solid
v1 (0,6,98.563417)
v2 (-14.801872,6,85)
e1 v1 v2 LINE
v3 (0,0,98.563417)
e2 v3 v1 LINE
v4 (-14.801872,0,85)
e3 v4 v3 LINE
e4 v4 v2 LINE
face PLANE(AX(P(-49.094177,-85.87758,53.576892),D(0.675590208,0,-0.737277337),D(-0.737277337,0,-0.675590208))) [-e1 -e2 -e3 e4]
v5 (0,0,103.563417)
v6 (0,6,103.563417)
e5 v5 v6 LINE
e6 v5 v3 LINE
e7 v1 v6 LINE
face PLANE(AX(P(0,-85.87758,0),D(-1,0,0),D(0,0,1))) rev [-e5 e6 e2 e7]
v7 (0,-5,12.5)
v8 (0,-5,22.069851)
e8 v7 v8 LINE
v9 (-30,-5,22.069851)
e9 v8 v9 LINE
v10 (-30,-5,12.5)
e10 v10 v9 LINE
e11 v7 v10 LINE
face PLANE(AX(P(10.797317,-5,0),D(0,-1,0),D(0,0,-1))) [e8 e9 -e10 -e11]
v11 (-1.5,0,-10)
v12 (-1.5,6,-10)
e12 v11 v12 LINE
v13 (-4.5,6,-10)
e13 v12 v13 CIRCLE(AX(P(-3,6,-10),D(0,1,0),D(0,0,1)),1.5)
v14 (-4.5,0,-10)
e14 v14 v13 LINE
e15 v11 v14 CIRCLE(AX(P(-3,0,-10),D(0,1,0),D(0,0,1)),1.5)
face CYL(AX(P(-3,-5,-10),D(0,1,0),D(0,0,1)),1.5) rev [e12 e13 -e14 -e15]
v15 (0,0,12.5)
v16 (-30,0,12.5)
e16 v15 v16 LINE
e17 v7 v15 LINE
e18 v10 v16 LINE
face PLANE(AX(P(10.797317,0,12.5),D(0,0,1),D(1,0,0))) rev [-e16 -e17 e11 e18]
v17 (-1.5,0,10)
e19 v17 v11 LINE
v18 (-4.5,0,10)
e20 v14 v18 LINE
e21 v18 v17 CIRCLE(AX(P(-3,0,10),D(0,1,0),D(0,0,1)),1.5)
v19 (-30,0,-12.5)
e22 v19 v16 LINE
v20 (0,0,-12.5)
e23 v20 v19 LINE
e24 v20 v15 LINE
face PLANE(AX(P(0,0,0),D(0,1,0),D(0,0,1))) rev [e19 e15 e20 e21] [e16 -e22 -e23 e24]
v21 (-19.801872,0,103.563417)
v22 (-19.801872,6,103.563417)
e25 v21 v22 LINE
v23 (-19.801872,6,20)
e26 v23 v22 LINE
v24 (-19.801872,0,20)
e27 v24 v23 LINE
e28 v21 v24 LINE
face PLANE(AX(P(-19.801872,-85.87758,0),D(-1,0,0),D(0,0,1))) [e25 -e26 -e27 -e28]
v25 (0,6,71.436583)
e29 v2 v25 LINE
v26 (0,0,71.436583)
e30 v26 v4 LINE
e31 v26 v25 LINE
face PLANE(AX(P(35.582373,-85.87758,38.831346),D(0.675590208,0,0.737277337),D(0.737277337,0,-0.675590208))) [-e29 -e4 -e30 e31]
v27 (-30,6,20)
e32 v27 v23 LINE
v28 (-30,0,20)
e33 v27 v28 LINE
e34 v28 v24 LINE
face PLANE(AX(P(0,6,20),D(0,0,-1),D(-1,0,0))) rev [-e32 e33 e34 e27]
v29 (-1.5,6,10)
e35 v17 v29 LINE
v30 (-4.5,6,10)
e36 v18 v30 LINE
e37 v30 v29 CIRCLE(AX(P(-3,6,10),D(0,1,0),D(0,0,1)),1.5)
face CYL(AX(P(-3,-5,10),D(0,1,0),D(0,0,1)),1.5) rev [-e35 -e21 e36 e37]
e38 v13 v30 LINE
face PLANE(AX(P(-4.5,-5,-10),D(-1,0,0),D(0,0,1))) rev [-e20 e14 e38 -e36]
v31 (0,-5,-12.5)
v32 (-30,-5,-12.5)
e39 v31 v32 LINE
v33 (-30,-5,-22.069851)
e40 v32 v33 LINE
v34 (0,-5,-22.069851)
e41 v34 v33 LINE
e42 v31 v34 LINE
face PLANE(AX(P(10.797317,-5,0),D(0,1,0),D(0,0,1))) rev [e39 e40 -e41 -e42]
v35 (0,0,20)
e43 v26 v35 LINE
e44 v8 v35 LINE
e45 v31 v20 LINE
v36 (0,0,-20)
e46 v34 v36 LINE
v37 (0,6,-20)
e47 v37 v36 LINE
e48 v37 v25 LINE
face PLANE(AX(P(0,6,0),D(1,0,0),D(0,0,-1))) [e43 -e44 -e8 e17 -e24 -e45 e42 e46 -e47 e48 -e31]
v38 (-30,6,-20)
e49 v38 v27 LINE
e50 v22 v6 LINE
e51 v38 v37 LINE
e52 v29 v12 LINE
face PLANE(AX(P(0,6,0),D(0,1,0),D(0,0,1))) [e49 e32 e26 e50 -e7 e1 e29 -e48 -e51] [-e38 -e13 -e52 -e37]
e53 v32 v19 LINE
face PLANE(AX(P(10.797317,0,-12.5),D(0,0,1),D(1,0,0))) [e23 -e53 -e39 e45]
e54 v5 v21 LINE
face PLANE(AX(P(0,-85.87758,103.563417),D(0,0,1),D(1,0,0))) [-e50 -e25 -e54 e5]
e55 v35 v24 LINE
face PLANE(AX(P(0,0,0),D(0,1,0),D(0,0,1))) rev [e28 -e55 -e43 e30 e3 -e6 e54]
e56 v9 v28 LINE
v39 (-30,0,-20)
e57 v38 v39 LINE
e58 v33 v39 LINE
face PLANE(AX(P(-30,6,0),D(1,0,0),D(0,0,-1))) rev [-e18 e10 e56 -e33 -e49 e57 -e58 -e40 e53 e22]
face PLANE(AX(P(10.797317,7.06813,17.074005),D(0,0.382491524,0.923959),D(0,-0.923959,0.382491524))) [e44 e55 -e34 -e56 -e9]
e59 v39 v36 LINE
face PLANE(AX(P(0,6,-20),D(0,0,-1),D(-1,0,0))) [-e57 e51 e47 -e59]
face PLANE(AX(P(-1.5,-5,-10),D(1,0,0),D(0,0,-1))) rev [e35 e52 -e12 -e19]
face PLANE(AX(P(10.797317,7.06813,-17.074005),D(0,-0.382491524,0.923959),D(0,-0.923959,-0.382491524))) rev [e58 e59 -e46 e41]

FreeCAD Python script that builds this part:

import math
import FreeCAD as App
import Part
import Sketcher
from FreeCAD import Vector
Q = App.Units.Quantity


def add_polygon(sketch, points):
    """Adds a closed chain of lines whose ends are joined by coincident constraints."""
    first, n = sketch.GeometryCount, len(points)
    for a, b in zip(points, points[1:] + points[:1]):
        sketch.addGeometry(Part.LineSegment(App.Vector(*a, 0), App.Vector(*b, 0)), False)
    for i in range(n):
        sketch.addConstraint(Sketcher.Constraint("Coincident", first + i, 2, first + (i + 1) % n, 1))

doc = App.newDocument("Part")
body = doc.addObject("PartDesign::Body", "Body")

sketch1 = body.newObject("Sketcher::SketchObject", "Sketch")
sketch1.AttachmentSupport = (doc.getObject("XZ_Plane"), [""])
sketch1.MapMode = "FlatFace"
add_polygon(sketch1, [(-30, -20), (-30, 20), (0, 20), (0, -20)])
sketch1.addConstraint([
    Sketcher.Constraint("Vertical", 0),
    Sketcher.Constraint("Horizontal", 1),
    Sketcher.Constraint("Vertical", 2),
    Sketcher.Constraint("Horizontal", 3),
    Sketcher.Constraint("Symmetric", 1, 2, 2, 2, -1, 1),
    Sketcher.Constraint("DistanceX", 1, 1, 1, 2, 30.0),
    Sketcher.Constraint("DistanceY", 0, 1, 0, 2, 40.0),
])
pad1 = body.newObject("PartDesign::Pad", "Pad")
pad1.Profile = sketch1
pad1.Length = 6
pad1.Reversed = True

sketch2 = body.newObject("Sketcher::SketchObject", "Sketch001")
sketch2.AttachmentSupport = (doc.getObject("YZ_Plane"), [""])
sketch2.MapMode = "FlatFace"
sketch2.AttachmentOffset = App.Placement(Vector(0, 0, -30), App.Rotation())
add_polygon(sketch2, [(0, 12.5), (0, 20), (-5, 22.069851), (-5, 12.5)])
sketch2.addConstraint([
    Sketcher.Constraint("Vertical", 0),
    Sketcher.Constraint("Vertical", 2),
    Sketcher.Constraint("Horizontal", 3),
    Sketcher.Constraint("PointOnObject", 0, 2, -2),
    Sketcher.Constraint("DistanceX", 3, 1, 3, 2, 5.0),
    Sketcher.Constraint("DistanceY", 0, 1, 0, 2, 7.5),
    Sketcher.Constraint("DistanceY", -1, 1, 0, 2, 20.0),
    Sketcher.Constraint("DistanceY", 2, 2, 2, 1, 9.569851),
])
pad2 = body.newObject("PartDesign::Pad", "Pad001")
pad2.Profile = sketch2
pad2.Length = 30

sketch3 = body.newObject("Sketcher::SketchObject", "Sketch002")
sketch3.AttachmentSupport = (doc.getObject("YZ_Plane"), [""])
sketch3.MapMode = "FlatFace"
sketch3.AttachmentOffset = App.Placement(Vector(0, 0, -30), App.Rotation())
add_polygon(sketch3, [(0, -20), (0, -12.5), (-5, -12.5), (-5, -22.069851)])
sketch3.addConstraint([
    Sketcher.Constraint("Vertical", 0),
    Sketcher.Constraint("Horizontal", 1),
    Sketcher.Constraint("Vertical", 2),
    Sketcher.Constraint("PointOnObject", 0, 2, -2),
    Sketcher.Constraint("DistanceX", 1, 2, 1, 1, 5.0),
    Sketcher.Constraint("DistanceY", 0, 1, 0, 2, 7.5),
    Sketcher.Constraint("DistanceY", 3, 2, -1, 1, 20.0),
    Sketcher.Constraint("DistanceY", 2, 2, 2, 1, 9.569851),
])
pad3 = body.newObject("PartDesign::Pad", "Pad002")
pad3.Profile = sketch3
pad3.Length = 30

sketch4 = body.newObject("Sketcher::SketchObject", "Sketch003")
sketch4.AttachmentSupport = (doc.getObject("XZ_Plane"), [""])
sketch4.MapMode = "FlatFace"
sketch4.addGeometry([
    Part.LineSegment(Vector(-1.5, 10, 0), Vector(-1.5, -10, 0)),
    Part.ArcOfCircle(Part.Circle(Vector(-3, -10, 0), Vector(0, 0, 1), 1.5), math.radians(180), math.radians(360)),
    Part.LineSegment(Vector(-4.5, -10, 0), Vector(-4.5, 10, 0)),
    Part.ArcOfCircle(Part.Circle(Vector(-3, 10, 0), Vector(0, 0, 1), 1.5), math.radians(0), math.radians(180)),
], False)
sketch4.addConstraint([
    Sketcher.Constraint("Tangent", 0, 2, 1, 2),
    Sketcher.Constraint("Tangent", 1, 1, 2, 1),
    Sketcher.Constraint("Tangent", 2, 2, 3, 2),
    Sketcher.Constraint("Tangent", 3, 1, 0, 1),
    Sketcher.Constraint("Vertical", 0),
    Sketcher.Constraint("Vertical", 2),
    Sketcher.Constraint("Radius", 1, 1.5),
    Sketcher.Constraint("DistanceY", 0, 2, 0, 1, 20.0),
    Sketcher.Constraint("DistanceX", 1, 3, -1, 1, 3.0),
    Sketcher.Constraint("DistanceY", 1, 3, -1, 1, 10.0),
])
pocket1 = body.newObject("PartDesign::Pocket", "Pocket")
pocket1.Profile = sketch4
pocket1.Type = "UpToFirst"

sketch5 = body.newObject("Sketcher::SketchObject", "Sketch004")
sketch5.AttachmentSupport = (doc.getObject("XZ_Plane"), [""])
sketch5.MapMode = "FlatFace"
sketch5.addGeometry([
    Part.LineSegment(Vector(-1.5, 10, 0), Vector(-1.5, -10, 0)),
    Part.ArcOfCircle(Part.Circle(Vector(-3, -10, 0), Vector(0, 0, 1), 1.5), math.radians(180), math.radians(360)),
    Part.LineSegment(Vector(-4.5, -10, 0), Vector(-4.5, 10, 0)),
    Part.ArcOfCircle(Part.Circle(Vector(-3, 10, 0), Vector(0, 0, 1), 1.5), math.radians(0), math.radians(180)),
], False)
sketch5.addConstraint([
    Sketcher.Constraint("Tangent", 0, 2, 1, 2),
    Sketcher.Constraint("Tangent", 1, 1, 2, 1),
    Sketcher.Constraint("Tangent", 2, 2, 3, 2),
    Sketcher.Constraint("Tangent", 3, 1, 0, 1),
    Sketcher.Constraint("Vertical", 0),
    Sketcher.Constraint("Vertical", 2),
    Sketcher.Constraint("Radius", 1, 1.5),
    Sketcher.Constraint("DistanceY", 0, 2, 0, 1, 20.0),
    Sketcher.Constraint("DistanceX", 1, 3, -1, 1, 3.0),
    Sketcher.Constraint("DistanceY", 1, 3, -1, 1, 10.0),
])
pocket2 = body.newObject("PartDesign::Pocket", "Pocket001")
pocket2.Profile = sketch5
pocket2.Length = 38.72371
pocket2.Reversed = True

sketch6 = body.newObject("Sketcher::SketchObject", "Sketch005")
sketch6.AttachmentSupport = (doc.getObject("XZ_Plane"), [""])
sketch6.MapMode = "FlatFace"
sketch6.AttachmentOffset = App.Placement(Vector(0, 0, -6), App.Rotation())
add_polygon(sketch6, [(0, 103.563417), (0, 98.563417), (-14.801872, 85), (0, 71.436583), (0, 20), (-19.801872, 20), (-19.801872, 103.563417)])
sketch6.addConstraint([
    Sketcher.Constraint("Vertical", 0),
    Sketcher.Constraint("Vertical", 3),
    Sketcher.Constraint("Horizontal", 4),
    Sketcher.Constraint("Vertical", 5),
    Sketcher.Constraint("Horizontal", 6),
    Sketcher.Constraint("PointOnObject", 0, 2, -2),
    Sketcher.Constraint("PointOnObject", 2, 2, -2),
    Sketcher.Constraint("Equal", 1, 2),
    Sketcher.Constraint("DistanceY", 0, 2, 0, 1, 5.0),
    Sketcher.Constraint("DistanceY", -1, 1, 1, 2, 85.0),
    Sketcher.Constraint("DistanceY", -1, 1, 3, 2, 20.0),
    Sketcher.Constraint("Angle", 1, Q("-137.5 deg")),
    Sketcher.Constraint("DistanceX", 4, 2, 1, 2, 5.0),
    Sketcher.Constraint("DistanceX", 4, 2, 4, 1, 19.801872),
])
pad4 = body.newObject("PartDesign::Pad", "Pad003")
pad4.Profile = sketch6
pad4.Length = 6

doc.recompute()
